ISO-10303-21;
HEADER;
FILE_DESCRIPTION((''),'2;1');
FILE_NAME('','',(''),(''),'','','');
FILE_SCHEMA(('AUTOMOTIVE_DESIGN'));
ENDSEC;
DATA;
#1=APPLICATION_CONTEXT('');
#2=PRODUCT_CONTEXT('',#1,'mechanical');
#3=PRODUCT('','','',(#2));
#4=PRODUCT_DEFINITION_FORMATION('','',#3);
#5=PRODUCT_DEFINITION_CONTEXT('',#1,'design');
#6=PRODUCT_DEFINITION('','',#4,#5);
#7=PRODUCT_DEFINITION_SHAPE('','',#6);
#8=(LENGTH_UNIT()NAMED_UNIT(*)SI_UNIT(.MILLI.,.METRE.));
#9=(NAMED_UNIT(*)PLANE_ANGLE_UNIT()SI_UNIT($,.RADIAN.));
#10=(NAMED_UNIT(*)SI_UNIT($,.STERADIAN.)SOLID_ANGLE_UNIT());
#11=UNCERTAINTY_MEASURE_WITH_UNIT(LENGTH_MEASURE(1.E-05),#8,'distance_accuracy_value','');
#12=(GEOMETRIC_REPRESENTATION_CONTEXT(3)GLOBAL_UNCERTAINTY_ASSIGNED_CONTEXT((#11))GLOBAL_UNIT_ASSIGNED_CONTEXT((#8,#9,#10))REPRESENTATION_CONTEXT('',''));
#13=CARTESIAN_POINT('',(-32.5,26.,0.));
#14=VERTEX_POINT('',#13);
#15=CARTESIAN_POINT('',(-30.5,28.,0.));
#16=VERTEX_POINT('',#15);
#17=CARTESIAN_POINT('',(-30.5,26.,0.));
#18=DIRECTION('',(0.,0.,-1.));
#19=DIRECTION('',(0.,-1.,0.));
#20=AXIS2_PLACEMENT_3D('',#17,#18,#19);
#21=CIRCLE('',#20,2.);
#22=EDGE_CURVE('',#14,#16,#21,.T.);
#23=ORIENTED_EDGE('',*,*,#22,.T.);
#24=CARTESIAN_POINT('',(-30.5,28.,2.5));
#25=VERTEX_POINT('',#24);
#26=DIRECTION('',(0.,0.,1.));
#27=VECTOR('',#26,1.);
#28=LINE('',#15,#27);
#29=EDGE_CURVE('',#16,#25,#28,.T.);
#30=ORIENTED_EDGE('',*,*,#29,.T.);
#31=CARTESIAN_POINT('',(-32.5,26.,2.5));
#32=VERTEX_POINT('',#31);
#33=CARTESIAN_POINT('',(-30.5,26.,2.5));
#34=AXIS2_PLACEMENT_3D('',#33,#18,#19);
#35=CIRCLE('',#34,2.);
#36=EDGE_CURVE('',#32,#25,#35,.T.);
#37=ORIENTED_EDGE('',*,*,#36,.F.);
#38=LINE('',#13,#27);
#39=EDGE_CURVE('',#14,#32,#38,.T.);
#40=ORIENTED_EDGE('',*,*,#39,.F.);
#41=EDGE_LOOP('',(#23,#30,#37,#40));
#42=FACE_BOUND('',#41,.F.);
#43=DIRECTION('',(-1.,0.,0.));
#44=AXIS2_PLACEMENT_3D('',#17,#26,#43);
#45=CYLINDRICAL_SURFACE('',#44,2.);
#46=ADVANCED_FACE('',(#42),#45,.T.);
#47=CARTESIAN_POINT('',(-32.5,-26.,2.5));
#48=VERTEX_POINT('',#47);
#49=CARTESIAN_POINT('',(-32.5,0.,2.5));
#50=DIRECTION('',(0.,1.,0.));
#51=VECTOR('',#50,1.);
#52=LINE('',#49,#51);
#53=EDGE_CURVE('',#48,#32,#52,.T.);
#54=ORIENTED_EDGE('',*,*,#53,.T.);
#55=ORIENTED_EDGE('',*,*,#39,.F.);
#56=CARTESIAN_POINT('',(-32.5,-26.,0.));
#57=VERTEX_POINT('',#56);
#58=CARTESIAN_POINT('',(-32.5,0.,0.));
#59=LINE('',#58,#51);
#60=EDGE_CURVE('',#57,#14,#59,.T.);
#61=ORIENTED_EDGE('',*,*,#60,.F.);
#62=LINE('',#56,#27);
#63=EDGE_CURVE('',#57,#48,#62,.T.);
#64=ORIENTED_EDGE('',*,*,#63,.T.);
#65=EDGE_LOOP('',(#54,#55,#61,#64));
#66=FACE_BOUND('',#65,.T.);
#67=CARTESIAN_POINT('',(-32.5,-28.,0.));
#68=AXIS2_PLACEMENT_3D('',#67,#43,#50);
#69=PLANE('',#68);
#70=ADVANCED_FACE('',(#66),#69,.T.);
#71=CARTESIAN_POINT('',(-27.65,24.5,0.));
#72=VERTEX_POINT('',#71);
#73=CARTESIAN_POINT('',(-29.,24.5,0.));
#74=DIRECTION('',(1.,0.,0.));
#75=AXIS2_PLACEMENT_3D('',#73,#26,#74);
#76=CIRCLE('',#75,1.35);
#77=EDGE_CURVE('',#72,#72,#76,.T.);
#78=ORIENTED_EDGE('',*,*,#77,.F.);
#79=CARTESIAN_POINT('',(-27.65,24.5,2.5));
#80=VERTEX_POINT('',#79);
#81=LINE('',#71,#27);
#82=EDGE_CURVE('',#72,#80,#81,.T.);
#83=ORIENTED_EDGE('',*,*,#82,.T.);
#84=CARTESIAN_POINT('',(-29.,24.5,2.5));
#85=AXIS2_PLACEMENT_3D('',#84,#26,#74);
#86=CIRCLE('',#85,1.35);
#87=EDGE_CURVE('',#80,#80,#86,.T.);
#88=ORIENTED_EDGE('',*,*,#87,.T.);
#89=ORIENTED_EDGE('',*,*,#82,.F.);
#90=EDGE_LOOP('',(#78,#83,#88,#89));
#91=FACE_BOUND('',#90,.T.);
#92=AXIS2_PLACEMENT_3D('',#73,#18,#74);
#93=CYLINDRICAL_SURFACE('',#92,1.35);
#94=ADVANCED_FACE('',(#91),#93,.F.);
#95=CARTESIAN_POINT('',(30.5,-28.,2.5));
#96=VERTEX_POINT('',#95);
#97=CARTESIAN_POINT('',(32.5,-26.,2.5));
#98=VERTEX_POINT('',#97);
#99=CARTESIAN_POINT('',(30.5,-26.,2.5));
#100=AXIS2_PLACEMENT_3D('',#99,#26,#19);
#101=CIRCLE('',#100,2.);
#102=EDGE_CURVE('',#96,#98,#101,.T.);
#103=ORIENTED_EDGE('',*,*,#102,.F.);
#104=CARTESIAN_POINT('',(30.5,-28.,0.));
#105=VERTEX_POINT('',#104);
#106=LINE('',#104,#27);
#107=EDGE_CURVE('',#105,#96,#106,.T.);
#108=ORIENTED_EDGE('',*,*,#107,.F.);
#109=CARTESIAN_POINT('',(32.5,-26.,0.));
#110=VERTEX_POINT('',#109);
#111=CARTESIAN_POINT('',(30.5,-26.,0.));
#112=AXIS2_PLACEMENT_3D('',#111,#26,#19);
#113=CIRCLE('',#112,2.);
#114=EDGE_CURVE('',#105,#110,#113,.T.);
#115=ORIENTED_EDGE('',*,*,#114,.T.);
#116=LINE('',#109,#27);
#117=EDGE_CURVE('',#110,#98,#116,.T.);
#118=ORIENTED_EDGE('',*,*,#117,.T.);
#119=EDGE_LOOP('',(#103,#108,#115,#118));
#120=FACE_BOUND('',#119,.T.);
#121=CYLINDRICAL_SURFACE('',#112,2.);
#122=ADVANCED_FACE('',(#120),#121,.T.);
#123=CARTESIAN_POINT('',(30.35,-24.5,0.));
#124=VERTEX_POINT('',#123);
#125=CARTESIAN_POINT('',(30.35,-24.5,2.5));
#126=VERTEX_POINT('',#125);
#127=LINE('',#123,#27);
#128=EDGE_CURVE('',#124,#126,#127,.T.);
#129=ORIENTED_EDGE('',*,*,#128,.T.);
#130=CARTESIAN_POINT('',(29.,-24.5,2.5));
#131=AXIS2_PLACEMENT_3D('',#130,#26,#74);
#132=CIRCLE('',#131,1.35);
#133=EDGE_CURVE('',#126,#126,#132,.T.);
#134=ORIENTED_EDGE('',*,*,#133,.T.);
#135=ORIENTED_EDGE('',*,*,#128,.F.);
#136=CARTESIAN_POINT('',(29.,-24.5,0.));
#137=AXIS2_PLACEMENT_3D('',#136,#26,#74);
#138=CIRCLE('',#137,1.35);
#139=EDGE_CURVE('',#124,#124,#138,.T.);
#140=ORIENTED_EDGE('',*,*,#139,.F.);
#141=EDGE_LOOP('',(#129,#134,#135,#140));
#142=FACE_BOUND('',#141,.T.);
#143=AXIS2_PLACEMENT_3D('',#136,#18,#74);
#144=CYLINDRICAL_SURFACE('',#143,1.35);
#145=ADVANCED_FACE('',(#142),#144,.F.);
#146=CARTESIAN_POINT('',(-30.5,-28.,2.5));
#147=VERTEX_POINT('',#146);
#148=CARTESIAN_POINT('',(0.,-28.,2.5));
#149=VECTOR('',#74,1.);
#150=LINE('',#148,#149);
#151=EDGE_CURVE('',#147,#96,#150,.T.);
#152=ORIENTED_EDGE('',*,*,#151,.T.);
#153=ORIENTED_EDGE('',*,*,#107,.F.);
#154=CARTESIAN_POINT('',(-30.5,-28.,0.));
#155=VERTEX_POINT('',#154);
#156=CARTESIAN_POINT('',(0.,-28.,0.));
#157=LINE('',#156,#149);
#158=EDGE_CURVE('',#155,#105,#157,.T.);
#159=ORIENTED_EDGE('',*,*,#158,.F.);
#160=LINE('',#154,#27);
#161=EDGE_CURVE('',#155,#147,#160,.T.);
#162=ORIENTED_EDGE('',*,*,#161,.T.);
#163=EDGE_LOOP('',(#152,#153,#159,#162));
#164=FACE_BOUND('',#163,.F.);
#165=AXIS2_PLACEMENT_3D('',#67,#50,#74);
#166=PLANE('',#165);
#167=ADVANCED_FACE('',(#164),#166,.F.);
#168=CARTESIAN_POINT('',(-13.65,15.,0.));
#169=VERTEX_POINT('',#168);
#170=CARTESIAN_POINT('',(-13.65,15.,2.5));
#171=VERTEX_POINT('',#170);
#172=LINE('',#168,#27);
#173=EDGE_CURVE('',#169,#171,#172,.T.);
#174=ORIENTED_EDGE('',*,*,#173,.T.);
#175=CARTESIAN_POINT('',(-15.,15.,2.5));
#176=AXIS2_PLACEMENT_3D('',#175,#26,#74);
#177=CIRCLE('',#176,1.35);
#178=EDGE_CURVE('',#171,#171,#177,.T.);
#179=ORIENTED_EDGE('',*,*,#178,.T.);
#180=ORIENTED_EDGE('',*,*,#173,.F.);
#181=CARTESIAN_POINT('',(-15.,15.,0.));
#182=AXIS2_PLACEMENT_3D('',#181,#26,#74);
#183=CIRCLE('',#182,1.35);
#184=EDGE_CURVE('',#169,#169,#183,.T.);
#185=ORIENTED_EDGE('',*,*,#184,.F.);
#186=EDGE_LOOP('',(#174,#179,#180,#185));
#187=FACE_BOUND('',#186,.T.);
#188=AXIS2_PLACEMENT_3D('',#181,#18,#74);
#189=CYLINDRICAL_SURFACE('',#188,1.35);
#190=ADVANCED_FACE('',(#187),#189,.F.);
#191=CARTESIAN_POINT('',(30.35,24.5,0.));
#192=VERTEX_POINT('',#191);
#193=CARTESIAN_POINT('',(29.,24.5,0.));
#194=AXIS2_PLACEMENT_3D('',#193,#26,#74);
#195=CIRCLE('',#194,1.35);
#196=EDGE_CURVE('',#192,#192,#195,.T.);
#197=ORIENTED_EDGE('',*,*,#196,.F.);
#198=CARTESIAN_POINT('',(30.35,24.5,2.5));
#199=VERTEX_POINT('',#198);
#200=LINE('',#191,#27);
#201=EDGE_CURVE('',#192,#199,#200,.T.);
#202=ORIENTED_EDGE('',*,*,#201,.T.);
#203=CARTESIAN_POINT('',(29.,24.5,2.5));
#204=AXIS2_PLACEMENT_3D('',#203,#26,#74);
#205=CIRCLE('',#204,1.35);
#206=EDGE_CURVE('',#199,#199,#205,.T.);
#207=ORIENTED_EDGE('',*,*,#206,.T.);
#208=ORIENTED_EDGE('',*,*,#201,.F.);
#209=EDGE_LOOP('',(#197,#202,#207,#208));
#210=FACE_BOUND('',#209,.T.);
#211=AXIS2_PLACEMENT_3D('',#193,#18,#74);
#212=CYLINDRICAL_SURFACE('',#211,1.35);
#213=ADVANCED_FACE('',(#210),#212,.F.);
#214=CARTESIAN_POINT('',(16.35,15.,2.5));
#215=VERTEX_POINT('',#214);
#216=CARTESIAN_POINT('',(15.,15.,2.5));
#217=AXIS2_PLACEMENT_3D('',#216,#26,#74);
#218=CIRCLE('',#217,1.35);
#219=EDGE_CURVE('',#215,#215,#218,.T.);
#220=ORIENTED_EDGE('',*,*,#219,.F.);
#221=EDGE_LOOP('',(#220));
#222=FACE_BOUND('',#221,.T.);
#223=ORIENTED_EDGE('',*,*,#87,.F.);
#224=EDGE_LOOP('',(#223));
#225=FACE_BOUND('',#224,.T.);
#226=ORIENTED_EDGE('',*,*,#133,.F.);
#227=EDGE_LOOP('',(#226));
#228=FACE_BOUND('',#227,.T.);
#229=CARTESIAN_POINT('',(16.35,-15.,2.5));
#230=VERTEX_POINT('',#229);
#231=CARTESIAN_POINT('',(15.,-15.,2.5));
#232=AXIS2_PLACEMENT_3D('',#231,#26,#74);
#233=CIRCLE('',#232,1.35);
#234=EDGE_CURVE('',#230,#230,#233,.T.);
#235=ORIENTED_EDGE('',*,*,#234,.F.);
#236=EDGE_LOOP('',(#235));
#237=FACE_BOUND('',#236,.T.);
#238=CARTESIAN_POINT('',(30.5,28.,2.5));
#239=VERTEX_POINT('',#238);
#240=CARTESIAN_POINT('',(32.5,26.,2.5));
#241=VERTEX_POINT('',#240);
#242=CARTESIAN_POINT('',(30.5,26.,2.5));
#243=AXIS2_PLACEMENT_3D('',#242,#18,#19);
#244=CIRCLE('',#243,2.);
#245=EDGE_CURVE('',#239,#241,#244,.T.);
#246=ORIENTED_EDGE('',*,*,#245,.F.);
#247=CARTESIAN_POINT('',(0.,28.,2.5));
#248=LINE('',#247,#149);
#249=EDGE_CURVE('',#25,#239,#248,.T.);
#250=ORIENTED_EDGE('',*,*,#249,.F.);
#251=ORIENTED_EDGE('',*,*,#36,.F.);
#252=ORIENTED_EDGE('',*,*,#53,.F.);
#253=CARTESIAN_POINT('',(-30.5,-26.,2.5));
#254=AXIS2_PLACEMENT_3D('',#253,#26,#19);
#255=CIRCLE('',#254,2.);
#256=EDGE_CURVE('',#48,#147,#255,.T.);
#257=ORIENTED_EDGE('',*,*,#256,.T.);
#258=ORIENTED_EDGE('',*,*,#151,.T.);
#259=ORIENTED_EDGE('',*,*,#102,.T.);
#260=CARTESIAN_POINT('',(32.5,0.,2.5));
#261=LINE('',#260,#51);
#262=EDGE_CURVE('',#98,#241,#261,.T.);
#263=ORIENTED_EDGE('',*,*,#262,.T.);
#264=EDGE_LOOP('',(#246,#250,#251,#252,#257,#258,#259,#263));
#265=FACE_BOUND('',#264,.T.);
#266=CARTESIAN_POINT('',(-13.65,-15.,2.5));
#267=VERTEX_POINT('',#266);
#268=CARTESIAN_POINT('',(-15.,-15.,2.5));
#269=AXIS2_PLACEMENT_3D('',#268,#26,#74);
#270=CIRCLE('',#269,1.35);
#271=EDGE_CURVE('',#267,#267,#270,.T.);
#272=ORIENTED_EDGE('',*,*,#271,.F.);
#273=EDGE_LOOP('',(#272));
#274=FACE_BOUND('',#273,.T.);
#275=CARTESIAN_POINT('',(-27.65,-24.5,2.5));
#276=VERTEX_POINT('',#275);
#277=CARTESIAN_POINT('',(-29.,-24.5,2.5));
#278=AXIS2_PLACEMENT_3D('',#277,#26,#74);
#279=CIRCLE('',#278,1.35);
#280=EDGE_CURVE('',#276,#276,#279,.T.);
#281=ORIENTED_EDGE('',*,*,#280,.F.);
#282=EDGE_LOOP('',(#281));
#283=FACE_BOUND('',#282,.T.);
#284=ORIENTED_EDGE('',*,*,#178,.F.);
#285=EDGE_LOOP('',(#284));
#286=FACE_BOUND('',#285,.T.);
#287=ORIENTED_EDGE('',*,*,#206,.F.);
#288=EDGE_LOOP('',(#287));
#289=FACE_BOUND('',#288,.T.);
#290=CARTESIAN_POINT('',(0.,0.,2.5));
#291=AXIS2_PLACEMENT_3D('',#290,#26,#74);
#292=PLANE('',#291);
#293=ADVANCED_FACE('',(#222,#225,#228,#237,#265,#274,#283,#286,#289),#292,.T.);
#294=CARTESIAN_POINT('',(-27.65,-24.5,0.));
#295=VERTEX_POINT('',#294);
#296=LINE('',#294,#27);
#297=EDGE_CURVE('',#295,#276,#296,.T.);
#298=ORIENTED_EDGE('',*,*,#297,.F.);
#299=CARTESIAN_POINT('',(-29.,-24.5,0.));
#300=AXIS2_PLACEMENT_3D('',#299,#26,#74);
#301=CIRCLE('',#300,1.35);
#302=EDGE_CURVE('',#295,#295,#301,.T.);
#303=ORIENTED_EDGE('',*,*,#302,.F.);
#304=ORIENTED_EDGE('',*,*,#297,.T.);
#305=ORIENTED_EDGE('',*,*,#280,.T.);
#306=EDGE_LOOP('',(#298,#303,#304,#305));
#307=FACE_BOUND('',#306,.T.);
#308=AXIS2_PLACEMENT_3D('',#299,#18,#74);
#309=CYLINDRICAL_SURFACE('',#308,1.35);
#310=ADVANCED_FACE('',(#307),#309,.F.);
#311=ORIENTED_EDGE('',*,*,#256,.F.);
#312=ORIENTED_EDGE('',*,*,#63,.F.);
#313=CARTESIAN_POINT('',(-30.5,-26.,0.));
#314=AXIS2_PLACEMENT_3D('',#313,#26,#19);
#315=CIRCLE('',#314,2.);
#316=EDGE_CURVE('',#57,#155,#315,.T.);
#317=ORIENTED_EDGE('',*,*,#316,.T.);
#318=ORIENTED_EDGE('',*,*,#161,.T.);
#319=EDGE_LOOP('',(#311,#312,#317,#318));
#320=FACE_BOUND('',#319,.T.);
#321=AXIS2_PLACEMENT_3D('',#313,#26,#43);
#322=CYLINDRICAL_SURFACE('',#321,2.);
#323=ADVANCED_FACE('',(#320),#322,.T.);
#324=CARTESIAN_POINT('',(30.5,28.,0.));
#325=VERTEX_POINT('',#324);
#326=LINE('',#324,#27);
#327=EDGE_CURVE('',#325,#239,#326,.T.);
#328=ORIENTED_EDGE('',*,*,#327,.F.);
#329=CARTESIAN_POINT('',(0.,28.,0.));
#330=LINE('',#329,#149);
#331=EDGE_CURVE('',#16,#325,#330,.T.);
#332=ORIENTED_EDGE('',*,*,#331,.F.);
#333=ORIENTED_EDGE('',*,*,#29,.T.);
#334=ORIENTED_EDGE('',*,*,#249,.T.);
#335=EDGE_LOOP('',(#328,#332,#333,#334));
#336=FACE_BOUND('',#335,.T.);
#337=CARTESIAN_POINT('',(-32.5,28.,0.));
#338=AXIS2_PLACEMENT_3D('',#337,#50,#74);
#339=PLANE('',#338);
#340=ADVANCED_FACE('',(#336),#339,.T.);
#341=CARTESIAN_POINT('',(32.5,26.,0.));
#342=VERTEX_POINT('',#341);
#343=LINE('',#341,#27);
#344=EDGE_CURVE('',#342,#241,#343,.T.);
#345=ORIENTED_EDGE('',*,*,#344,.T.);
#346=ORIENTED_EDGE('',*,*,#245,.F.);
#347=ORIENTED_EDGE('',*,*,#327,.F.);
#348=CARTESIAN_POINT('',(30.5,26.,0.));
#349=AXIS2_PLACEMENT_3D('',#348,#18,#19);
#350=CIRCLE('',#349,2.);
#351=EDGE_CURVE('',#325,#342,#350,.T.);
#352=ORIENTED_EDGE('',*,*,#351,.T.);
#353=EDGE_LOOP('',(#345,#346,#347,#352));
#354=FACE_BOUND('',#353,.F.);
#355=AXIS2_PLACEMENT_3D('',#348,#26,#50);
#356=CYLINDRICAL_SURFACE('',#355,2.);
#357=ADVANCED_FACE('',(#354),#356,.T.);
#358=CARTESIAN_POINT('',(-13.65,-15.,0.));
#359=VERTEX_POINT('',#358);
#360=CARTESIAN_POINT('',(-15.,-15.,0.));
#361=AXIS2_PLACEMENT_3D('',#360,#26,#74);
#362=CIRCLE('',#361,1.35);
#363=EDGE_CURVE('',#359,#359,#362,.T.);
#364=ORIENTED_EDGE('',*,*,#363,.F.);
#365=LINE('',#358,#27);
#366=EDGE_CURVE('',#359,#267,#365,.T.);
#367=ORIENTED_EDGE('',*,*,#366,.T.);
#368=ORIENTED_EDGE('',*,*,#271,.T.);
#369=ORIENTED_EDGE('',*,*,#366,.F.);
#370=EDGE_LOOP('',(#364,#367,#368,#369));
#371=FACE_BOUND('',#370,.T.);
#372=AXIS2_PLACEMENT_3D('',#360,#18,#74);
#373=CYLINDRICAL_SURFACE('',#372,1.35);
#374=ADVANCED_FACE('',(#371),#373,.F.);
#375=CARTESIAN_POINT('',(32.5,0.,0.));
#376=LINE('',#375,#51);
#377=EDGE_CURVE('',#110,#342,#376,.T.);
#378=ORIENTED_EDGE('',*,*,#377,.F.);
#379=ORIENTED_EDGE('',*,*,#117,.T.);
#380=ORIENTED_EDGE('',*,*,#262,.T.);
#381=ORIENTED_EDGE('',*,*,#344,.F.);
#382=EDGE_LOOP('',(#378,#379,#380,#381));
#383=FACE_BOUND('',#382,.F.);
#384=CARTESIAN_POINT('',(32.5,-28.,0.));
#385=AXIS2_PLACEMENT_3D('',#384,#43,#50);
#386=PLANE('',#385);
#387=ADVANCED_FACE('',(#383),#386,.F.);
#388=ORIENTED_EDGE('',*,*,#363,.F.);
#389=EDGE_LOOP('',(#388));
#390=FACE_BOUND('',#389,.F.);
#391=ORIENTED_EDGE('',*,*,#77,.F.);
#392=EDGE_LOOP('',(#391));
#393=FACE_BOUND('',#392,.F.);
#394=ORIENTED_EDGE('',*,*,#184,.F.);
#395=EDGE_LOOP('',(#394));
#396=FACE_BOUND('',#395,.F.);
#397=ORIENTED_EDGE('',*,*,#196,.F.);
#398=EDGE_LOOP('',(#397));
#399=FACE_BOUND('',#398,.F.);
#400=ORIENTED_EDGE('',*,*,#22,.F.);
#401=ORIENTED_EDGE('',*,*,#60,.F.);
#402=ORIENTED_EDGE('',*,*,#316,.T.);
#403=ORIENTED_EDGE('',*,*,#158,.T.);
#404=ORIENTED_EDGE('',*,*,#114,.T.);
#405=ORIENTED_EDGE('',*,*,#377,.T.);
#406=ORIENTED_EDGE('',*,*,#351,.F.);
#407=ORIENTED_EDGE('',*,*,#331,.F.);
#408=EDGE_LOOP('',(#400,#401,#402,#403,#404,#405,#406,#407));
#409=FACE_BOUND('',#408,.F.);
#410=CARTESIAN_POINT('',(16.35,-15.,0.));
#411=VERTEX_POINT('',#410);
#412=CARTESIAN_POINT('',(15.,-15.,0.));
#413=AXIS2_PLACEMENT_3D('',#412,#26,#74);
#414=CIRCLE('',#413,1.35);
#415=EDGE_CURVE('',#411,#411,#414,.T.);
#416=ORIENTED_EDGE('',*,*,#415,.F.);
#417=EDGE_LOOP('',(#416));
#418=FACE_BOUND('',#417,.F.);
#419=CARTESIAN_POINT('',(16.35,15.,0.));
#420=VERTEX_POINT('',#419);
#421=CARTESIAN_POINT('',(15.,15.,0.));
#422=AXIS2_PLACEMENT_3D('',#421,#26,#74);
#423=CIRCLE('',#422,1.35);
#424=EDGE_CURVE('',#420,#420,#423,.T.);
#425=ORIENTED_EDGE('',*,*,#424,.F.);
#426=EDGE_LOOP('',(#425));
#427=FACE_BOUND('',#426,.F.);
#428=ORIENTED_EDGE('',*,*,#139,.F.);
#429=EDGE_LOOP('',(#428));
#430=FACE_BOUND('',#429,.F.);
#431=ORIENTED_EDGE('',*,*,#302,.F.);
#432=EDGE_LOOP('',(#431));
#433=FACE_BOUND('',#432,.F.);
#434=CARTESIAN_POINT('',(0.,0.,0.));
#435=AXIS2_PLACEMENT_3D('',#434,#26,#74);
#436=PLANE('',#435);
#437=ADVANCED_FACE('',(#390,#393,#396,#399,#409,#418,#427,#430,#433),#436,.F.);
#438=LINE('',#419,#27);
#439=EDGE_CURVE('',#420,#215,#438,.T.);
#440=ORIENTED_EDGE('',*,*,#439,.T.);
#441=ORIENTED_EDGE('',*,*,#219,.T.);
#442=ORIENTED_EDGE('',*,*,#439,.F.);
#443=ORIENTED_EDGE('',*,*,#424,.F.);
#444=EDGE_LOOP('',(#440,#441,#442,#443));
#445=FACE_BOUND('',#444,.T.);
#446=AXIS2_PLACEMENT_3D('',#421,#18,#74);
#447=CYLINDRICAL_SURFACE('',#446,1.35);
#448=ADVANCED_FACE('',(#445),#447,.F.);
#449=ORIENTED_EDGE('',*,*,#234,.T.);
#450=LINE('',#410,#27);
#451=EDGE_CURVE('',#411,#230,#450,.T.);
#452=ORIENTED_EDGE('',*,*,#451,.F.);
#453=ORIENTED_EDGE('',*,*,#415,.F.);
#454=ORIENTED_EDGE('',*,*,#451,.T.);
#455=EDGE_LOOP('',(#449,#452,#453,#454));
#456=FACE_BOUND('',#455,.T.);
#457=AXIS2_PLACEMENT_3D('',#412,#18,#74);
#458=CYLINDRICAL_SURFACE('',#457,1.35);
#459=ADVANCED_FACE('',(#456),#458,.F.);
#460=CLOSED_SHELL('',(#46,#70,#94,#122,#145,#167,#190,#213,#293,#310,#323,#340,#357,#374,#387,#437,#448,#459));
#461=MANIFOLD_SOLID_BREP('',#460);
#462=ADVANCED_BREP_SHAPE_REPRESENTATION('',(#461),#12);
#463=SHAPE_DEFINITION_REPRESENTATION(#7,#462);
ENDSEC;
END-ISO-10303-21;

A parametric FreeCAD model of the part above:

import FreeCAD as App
import Part
import Sketcher

V = App.Vector


def edges_at(feature, points):
    """Names of the edges that pass closest to the given points."""
    edges = feature.Shape.Edges
    near = lambda p: min(range(len(edges)), key=lambda i: edges[i].distToShape(Part.Vertex(*p))[0])
    return sorted({f"Edge{near(p) + 1}" for p in points})


def add_polygon(sketch, points):
    """Adds a closed chain of lines whose ends are joined by coincident constraints."""
    first, n = sketch.GeometryCount, len(points)
    for a, b in zip(points, points[1:] + points[:1]):
        sketch.addGeometry(Part.LineSegment(App.Vector(*a, 0), App.Vector(*b, 0)), False)
    for i in range(n):
        sketch.addConstraint(Sketcher.Constraint("Coincident", first + i, 2, first + (i + 1) % n, 1))

doc = App.newDocument("Part")
params = doc.addObject("Spreadsheet::Sheet", "Params")
for row, (alias, value) in enumerate([
    ("sketch1_diameter", "2.7 mm"),
    ("sketch1_width", "65 mm"),
    ("sketch1_height", "56 mm"),
    ("pad1_length", "2.5 mm"),
    ("fillet_radius", "2 mm"),
], start=1):
    params.set(f"A{row}", alias)
    params.set(f"B{row}", "=" + value)
    params.setAlias(f"B{row}", alias)

body = doc.addObject("PartDesign::Body", "Body")

# Sketch on XY plane
sketch1 = body.newObject("Sketcher::SketchObject", "Sketch")
sketch1.AttachmentSupport = (doc.getObject("XY_Plane"), [""])
sketch1.MapMode = "FlatFace"
add_polygon(sketch1, [(-32.5, 28), (-32.5, -28), (32.5, -28), (32.5, 28)])  # lines 0-3
sketch1.addGeometry(Part.Circle(V(-29, -24.5, 0), V(0, 0, 1), 1.4), False)  # 4
sketch1.addGeometry(Part.Circle(V(-15, -15, 0), V(0, 0, 1), 1.4), False)  # 5
sketch1.addGeometry(Part.Circle(V(15, -15, 0), V(0, 0, 1), 1.4), False)  # 6
sketch1.addGeometry(Part.Circle(V(29, -24.5, 0), V(0, 0, 1), 1.4), False)  # 7
sketch1.addGeometry(Part.Circle(V(-29, 24.5, 0), V(0, 0, 1), 1.4), False)  # 8
sketch1.addGeometry(Part.Circle(V(-15, 15, 0), V(0, 0, 1), 1.4), False)  # 9
sketch1.addGeometry(Part.Circle(V(15, 15, 0), V(0, 0, 1), 1.4), False)  # 10
sketch1.addGeometry(Part.Circle(V(29, 24.5, 0), V(0, 0, 1), 1.4), False)  # 11
sketch1.addConstraint([
    Sketcher.Constraint("Vertical", 0),
    Sketcher.Constraint("Horizontal", 1),
    Sketcher.Constraint("Vertical", 2),
    Sketcher.Constraint("Horizontal", 3),
    Sketcher.Constraint("Equal", 4, 5),
    Sketcher.Constraint("Equal", 5, 6),
    Sketcher.Constraint("Equal", 6, 7),
    Sketcher.Constraint("Equal", 7, 8),
    Sketcher.Constraint("Equal", 8, 9),
    Sketcher.Constraint("Equal", 9, 10),
    Sketcher.Constraint("Equal", 10, 11),
    Sketcher.Constraint("Symmetric", 7, 3, 8, 3, -1, 1),
    Sketcher.Constraint("Symmetric", 6, 3, 9, 3, -1, 1),
    Sketcher.Constraint("Symmetric", 5, 3, 10, 3, -1, 1),
    Sketcher.Constraint("Symmetric", 4, 3, 11, 3, -1, 1),
    Sketcher.Constraint("Symmetric", 0, 2, 2, 2, -1, 1),
    Sketcher.Constraint("Symmetric", 5, 3, 6, 3, -2),
    Sketcher.Constraint("Symmetric", 4, 3, 7, 3, -2),
    Sketcher.Constraint("Diameter", 4, 2.7),
    Sketcher.Constraint("DistanceX", 1, 1, 1, 2, 65.0),
    Sketcher.Constraint("DistanceY", 0, 2, 0, 1, 56.0),
    Sketcher.Constraint("DistanceX", 4, 3, -1, 1, 29.0),
    Sketcher.Constraint("DistanceX", 5, 3, -1, 1, 15.0),
    Sketcher.Constraint("DistanceY", 5, 3, -1, 1, 15.0),
    Sketcher.Constraint("DistanceY", 4, 3, 8, 3, 49.0),
])
sketch1.setExpression("Constraints[22]", "Params.sketch1_diameter")
sketch1.setExpression("Constraints[23]", "Params.sketch1_width")
sketch1.setExpression("Constraints[24]", "Params.sketch1_height")
pad1 = body.newObject("PartDesign::Pad", "Pad")
pad1.Profile = sketch1
pad1.setExpression("Length", "Params.pad1_length")
doc.recompute()

fillet = body.newObject("PartDesign::Fillet", "Fillet")
fillet.Base = (pad1, edges_at(pad1, [
    (-32.5, -28, 1.25),
    (-32.5, 28, 1.25),
    (32.5, -28, 1.25),
    (32.5, 28, 1.25),
]))
fillet.setExpression("Radius", "Params.fillet_radius")

doc.recompute()
